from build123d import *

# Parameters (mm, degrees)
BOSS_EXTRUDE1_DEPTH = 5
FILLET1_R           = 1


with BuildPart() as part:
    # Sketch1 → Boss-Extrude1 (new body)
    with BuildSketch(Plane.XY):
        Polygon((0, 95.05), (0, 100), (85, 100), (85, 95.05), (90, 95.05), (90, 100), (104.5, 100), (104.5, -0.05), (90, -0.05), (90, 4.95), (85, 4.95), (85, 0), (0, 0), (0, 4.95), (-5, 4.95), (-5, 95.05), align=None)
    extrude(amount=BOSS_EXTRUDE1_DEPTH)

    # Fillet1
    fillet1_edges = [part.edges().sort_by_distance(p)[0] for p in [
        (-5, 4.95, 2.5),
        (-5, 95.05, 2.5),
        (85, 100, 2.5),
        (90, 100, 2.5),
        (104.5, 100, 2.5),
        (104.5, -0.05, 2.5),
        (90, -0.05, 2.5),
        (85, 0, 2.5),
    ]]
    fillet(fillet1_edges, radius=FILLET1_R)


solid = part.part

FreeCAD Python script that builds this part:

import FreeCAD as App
import Part
import Sketcher

V = App.Vector
Q = App.Units.Quantity


def edges_at(feature, points):
    """Names of the edges that pass closest to the given points."""
    edges = feature.Shape.Edges
    near = lambda p: min(range(len(edges)), key=lambda i: edges[i].distToShape(Part.Vertex(*p))[0])
    return sorted({f"Edge{near(p) + 1}" for p in points})


def add_polygon(sketch, points):
    """Adds a closed chain of lines whose ends are joined by coincident constraints."""
    first, n = sketch.GeometryCount, len(points)
    for a, b in zip(points, points[1:] + points[:1]):
        sketch.addGeometry(Part.LineSegment(App.Vector(*a, 0), App.Vector(*b, 0)), False)
    for i in range(n):
        sketch.addConstraint(Sketcher.Constraint("Coincident", first + i, 2, first + (i + 1) % n, 1))

doc = App.newDocument("Part")
body = doc.addObject("PartDesign::Body", "Body")

# Sketch on XY plane
sketch1 = doc.addObject("Sketcher::SketchObject", "Sketch")
body.addObject(sketch1)
sketch1.AttachmentSupport = (doc.XY_Plane, [""])
sketch1.MapMode = "FlatFace"
add_polygon(sketch1, [(0, 100), (0, 95), (-5, 95), (-5, 5), (0, 5), (0, 0), (85, 0), (85, 5), (90, 5), (90, -0.1), (104.5, -0.1), (104.5, 100), (90, 100), (90, 95), (85, 95), (85, 100)])  # lines 0-15
sketch1.addConstraint(Sketcher.Constraint("Vertical", 0))
sketch1.addConstraint(Sketcher.Constraint("Horizontal", 1))
sketch1.addConstraint(Sketcher.Constraint("Vertical", 2))
sketch1.addConstraint(Sketcher.Constraint("Horizontal", 3))
sketch1.addConstraint(Sketcher.Constraint("Vertical", 4))
sketch1.addConstraint(Sketcher.Constraint("Horizontal", 5))
sketch1.addConstraint(Sketcher.Constraint("Vertical", 6))
sketch1.addConstraint(Sketcher.Constraint("Horizontal", 7))
sketch1.addConstraint(Sketcher.Constraint("Vertical", 8))
sketch1.addConstraint(Sketcher.Constraint("Horizontal", 9))
sketch1.addConstraint(Sketcher.Constraint("Vertical", 10))
sketch1.addConstraint(Sketcher.Constraint("Horizontal", 11))
sketch1.addConstraint(Sketcher.Constraint("Vertical", 12))
sketch1.addConstraint(Sketcher.Constraint("Horizontal", 13))
sketch1.addConstraint(Sketcher.Constraint("Vertical", 14))
sketch1.addConstraint(Sketcher.Constraint("Horizontal", 15))
sketch1.addConstraint(Sketcher.Constraint("Coincident", 4, 2, -1, 1))
sketch1.addConstraint(Sketcher.Constraint("PointOnObject", 0, 2, -2))
sketch1.addConstraint(Sketcher.Constraint("Horizontal", 3, 2, 6, 2))
sketch1.addConstraint(Sketcher.Constraint("Horizontal", 1, 2, 12, 2))
sketch1.addConstraint(Sketcher.Constraint("Horizontal", 11, 2, 14, 2))
sketch1.addConstraint(Sketcher.Constraint("Vertical", 8, 2, 11, 2))
sketch1.addConstraint(Sketcher.Constraint("Vertical", 6, 2, 13, 2))
sketch1.addConstraint(Sketcher.Constraint("Equal", 3, 7))
sketch1.addConstraint(Sketcher.Constraint("Equal", 0, 4))
sketch1.addConstraint(Sketcher.Constraint("Equal", 13, 8))
sketch1.addConstraint(Sketcher.Constraint("DistanceX", 1, 2, 1, 1, Q("5 mm")))
sketch1.addConstraint(Sketcher.Constraint("DistanceX", 5, 1, 5, 2, Q("85 mm")))
sketch1.addConstraint(Sketcher.Constraint("DistanceX", 9, 1, 9, 2, Q("14.5 mm")))
sketch1.addConstraint(Sketcher.Constraint("DistanceY", 2, 2, 2, 1, Q("90.1 mm")))
sketch1.addConstraint(Sketcher.Constraint("DistanceY", -1, 1, 10, 2, Q("100 mm")))
pad1 = doc.addObject("PartDesign::Pad", "Pad")
body.addObject(pad1)
pad1.Profile = sketch1
pad1.Length = 5
doc.recompute()

fillet = doc.addObject("PartDesign::Fillet", "Fillet")
body.addObject(fillet)
fillet.Base = (pad1, edges_at(pad1, [
    (-5, 4.95, 2.5),
    (-5, 95.05, 2.5),
    (85, 100, 2.5),
    (90, 100, 2.5),
    (104.5, 100, 2.5),
    (104.5, -0.05, 2.5),
    (90, -0.05, 2.5),
    (85, 0, 2.5),
]))
fillet.Radius = 1

doc.recompute()
